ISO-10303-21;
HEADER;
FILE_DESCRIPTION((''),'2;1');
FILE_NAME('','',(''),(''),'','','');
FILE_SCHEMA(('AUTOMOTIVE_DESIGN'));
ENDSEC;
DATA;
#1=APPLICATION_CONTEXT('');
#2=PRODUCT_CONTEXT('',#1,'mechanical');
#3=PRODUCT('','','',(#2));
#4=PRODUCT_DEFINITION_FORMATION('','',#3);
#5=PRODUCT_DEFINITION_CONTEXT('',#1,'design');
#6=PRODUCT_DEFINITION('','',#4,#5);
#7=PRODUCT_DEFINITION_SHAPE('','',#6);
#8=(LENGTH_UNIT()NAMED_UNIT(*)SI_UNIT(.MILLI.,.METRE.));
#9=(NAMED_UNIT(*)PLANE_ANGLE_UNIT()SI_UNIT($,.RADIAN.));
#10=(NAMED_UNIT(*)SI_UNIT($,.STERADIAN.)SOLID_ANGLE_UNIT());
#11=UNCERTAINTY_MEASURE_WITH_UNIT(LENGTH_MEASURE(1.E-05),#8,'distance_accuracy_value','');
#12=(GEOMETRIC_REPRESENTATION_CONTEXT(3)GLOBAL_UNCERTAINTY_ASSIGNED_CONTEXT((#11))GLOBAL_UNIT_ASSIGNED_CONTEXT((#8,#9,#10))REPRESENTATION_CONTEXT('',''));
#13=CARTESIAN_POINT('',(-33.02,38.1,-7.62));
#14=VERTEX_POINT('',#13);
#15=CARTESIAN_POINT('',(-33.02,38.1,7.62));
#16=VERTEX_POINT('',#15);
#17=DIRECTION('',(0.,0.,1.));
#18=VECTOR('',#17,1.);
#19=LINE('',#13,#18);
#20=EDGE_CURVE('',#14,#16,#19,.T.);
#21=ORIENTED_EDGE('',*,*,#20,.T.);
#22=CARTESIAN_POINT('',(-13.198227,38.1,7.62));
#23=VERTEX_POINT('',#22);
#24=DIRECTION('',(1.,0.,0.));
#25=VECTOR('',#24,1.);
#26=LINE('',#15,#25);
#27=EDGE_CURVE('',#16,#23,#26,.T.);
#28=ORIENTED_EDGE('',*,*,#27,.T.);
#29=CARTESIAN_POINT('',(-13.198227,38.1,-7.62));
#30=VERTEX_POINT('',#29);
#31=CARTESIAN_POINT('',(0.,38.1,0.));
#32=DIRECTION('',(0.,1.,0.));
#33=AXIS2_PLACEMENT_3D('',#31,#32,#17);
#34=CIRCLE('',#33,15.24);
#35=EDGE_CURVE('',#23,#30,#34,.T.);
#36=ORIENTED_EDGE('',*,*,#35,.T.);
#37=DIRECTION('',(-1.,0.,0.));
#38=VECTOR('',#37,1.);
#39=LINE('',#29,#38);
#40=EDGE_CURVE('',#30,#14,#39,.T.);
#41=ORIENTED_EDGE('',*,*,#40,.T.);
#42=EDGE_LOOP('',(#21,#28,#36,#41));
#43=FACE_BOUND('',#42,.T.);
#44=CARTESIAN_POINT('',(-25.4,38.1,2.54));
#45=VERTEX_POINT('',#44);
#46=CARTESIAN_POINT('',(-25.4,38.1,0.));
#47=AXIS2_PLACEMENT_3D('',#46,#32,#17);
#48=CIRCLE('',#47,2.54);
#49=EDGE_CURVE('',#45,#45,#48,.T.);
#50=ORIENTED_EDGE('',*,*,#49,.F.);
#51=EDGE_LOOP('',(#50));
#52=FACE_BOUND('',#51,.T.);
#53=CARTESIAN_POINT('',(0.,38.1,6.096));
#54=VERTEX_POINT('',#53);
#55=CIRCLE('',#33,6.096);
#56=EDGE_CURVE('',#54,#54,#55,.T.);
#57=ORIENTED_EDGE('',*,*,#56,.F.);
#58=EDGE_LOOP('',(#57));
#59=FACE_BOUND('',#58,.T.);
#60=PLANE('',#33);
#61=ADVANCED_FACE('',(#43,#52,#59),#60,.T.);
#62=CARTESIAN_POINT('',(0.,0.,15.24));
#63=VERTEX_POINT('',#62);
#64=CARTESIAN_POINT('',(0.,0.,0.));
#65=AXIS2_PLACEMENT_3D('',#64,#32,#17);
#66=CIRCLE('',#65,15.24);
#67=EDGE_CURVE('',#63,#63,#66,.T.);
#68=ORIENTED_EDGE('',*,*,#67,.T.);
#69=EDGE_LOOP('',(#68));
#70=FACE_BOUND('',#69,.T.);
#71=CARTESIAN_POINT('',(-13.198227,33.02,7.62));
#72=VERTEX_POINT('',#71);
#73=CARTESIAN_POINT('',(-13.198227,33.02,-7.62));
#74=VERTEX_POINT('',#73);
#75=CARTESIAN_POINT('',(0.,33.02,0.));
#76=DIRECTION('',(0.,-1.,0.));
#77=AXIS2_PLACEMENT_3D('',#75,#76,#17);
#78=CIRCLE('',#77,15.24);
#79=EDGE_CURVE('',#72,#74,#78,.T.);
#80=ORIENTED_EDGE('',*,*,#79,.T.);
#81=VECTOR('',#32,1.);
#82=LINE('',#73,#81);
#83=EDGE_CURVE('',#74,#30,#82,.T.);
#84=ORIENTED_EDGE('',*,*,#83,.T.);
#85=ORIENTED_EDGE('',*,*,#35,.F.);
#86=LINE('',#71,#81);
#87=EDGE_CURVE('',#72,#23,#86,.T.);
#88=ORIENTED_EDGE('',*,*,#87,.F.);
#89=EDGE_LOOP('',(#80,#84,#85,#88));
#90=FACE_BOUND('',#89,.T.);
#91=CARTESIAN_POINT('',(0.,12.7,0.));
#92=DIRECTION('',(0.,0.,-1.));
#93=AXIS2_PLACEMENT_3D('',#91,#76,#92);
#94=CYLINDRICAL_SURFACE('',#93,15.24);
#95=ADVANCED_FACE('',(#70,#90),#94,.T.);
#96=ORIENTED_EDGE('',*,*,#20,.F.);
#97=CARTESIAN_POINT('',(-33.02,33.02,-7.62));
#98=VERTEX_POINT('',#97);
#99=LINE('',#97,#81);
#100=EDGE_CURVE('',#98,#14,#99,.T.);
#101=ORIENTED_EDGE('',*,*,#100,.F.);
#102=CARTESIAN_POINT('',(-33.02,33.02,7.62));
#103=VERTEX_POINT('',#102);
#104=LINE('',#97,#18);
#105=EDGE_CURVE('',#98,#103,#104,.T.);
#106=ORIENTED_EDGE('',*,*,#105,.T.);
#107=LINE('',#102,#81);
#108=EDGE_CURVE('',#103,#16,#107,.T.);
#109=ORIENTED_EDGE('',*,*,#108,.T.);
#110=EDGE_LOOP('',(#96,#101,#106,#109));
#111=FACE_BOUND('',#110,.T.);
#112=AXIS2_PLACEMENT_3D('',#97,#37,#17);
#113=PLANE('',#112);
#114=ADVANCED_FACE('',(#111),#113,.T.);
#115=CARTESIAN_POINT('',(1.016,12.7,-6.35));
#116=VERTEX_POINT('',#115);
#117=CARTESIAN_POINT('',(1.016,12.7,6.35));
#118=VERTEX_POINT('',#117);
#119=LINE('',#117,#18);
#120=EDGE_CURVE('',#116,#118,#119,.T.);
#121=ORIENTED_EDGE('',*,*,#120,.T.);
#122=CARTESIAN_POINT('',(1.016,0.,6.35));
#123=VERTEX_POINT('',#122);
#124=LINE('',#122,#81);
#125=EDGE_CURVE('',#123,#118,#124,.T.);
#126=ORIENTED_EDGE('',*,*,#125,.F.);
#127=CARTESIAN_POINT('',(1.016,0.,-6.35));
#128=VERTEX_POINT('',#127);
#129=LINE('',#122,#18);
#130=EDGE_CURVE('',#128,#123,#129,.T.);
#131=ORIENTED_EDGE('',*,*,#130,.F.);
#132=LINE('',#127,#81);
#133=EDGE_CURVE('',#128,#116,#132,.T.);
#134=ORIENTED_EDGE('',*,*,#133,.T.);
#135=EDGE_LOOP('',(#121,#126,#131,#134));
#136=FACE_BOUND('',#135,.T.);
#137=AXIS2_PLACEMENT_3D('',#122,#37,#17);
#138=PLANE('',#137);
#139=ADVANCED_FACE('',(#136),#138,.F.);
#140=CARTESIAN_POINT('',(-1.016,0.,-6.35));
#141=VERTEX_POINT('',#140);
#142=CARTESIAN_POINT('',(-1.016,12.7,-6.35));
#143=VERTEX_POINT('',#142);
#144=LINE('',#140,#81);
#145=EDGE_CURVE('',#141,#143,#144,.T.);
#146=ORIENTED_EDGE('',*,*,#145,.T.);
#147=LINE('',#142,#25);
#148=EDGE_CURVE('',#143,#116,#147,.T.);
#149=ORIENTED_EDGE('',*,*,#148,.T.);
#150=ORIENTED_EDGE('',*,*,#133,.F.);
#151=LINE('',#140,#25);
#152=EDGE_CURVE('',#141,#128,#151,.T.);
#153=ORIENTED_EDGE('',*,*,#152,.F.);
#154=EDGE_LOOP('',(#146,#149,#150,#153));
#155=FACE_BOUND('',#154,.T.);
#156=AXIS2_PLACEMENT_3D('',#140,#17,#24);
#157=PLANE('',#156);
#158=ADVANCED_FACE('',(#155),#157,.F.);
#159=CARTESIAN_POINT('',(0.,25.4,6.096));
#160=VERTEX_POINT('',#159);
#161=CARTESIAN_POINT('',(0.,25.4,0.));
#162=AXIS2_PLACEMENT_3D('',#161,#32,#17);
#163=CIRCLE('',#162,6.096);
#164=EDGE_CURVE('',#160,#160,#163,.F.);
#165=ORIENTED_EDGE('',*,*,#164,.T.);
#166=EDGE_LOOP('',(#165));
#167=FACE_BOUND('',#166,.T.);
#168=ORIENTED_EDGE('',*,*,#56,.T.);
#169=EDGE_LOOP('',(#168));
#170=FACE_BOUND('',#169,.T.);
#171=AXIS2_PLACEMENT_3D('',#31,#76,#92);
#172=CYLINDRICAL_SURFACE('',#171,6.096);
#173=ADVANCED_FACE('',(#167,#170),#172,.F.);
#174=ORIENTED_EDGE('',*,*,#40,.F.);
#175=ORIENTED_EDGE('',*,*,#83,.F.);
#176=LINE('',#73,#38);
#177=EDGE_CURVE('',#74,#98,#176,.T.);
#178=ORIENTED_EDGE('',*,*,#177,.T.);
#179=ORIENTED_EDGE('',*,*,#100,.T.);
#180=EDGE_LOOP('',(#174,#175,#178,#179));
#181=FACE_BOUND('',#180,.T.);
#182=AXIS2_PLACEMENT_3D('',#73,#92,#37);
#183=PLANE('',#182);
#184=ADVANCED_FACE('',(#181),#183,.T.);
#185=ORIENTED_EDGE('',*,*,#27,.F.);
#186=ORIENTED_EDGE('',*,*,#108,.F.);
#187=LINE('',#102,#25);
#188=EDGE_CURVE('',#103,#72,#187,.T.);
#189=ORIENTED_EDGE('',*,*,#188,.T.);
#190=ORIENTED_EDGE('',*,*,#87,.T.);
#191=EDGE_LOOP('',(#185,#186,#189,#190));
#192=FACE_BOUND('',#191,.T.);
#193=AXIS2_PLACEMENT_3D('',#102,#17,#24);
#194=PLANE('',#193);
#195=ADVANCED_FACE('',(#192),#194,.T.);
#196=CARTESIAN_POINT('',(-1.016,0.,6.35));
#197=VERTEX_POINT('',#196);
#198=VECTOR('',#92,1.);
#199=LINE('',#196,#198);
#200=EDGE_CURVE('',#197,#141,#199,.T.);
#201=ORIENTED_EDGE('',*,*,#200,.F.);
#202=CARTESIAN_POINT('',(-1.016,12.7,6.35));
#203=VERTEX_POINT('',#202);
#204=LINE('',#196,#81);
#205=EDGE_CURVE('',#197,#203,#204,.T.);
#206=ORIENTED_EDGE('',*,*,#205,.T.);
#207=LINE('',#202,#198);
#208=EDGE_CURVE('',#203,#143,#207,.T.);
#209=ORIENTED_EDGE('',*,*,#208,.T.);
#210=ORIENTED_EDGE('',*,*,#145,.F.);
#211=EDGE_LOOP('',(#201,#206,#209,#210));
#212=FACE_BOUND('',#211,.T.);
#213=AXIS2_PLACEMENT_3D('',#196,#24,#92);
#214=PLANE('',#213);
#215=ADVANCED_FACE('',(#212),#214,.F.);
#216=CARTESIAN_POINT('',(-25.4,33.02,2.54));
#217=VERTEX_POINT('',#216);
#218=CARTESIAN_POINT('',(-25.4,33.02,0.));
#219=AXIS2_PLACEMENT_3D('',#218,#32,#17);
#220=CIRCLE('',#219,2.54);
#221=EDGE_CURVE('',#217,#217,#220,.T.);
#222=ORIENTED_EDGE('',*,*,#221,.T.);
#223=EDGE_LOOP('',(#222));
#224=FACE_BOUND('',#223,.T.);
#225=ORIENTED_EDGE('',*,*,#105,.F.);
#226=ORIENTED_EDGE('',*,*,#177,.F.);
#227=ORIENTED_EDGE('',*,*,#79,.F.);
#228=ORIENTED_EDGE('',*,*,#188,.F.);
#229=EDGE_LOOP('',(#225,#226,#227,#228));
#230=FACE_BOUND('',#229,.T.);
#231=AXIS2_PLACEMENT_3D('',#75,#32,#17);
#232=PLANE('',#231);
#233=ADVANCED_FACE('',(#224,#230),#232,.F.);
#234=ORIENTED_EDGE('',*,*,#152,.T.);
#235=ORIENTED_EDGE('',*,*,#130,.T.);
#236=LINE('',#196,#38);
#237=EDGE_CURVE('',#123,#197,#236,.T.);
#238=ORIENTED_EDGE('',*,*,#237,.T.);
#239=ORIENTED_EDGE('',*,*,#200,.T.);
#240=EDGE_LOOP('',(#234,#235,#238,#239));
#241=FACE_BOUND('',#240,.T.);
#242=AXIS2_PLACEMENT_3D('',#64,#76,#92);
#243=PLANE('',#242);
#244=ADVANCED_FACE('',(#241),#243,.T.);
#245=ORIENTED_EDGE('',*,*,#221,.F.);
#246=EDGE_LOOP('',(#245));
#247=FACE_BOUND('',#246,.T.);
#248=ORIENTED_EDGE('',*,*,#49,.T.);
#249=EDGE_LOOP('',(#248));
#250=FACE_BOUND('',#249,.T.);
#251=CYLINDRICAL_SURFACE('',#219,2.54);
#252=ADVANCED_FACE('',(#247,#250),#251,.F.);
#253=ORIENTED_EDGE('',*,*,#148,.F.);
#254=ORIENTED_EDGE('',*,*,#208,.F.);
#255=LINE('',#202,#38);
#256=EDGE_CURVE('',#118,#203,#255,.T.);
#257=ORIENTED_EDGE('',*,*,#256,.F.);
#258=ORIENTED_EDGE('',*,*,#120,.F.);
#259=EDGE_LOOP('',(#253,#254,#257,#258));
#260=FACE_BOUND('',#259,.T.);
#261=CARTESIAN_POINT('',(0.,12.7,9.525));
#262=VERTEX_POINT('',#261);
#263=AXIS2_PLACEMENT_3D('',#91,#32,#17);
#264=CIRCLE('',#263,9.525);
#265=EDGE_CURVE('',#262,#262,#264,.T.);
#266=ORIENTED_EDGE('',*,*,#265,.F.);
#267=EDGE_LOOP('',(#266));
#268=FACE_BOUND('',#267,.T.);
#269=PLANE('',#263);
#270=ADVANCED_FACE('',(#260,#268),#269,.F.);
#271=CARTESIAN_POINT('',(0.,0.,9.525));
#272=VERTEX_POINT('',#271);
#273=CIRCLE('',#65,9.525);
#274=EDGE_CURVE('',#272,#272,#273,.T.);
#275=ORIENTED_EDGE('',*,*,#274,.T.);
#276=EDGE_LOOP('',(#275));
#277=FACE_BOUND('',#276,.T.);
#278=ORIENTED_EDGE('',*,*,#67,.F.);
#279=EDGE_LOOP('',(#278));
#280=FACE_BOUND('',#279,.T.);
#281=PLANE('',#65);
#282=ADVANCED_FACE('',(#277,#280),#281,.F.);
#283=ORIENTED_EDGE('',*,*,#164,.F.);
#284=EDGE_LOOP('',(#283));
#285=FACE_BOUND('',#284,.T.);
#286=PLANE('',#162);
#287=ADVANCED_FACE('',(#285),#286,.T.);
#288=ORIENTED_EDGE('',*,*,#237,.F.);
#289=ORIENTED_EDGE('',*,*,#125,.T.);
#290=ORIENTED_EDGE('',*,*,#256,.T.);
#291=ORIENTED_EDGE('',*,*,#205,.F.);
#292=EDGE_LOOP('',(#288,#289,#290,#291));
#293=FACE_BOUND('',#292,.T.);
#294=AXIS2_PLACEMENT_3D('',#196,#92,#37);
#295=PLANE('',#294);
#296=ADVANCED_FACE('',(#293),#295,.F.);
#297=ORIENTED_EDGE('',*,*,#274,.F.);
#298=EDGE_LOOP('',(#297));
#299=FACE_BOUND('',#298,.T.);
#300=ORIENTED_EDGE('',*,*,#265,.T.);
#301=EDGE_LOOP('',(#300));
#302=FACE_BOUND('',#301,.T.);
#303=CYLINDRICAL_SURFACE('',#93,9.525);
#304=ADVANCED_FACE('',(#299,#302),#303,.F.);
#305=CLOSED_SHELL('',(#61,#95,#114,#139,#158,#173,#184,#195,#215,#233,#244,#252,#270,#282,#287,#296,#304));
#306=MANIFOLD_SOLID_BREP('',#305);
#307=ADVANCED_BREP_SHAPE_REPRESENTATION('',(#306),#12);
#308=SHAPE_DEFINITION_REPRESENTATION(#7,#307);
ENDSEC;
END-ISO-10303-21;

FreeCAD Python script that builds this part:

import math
import FreeCAD as App
import Part
import Sketcher
Q = App.Units.Quantity


def add_polygon(sketch, points):
    """Adds a closed chain of lines whose ends are joined by coincident constraints."""
    first, n = sketch.GeometryCount, len(points)
    for a, b in zip(points, points[1:] + points[:1]):
        sketch.addGeometry(Part.LineSegment(App.Vector(*a, 0), App.Vector(*b, 0)), False)
    for i in range(n):
        sketch.addConstraint(Sketcher.Constraint("Coincident", first + i, 2, first + (i + 1) % n, 1))

doc = App.newDocument("Part")
params = doc.addObject("Spreadsheet::Sheet", "Params")
for row, (alias, value) in enumerate([
    ("sketch1_diameter", "1.2 in"),
    ("sketch1_diameter2", "0.75 in"),
    ("pad1_length", "0.5 in"),
    ("sketch2_diameter", "1.2 in"),
    ("pad2_length", "0.5 in"),
    ("sketch3_diameter", "1.2 in"),
    ("sketch3_diameter2", "0.48 in"),
    ("pad3_length", "0.5 in"),
    ("sketch4_height", "0.5 in"),
    ("sketch4_width", "0.08 in"),
    ("pad4_length", "0.5 in"),
    ("sketch5_radius", "0.6 in"),
    ("sketch5_height", "0.6 in"),
    ("pad5_length", "0.2 in"),
    ("sketch6_diameter", "0.2 in"),
    ("pocket1_length", "0.2 in"),
], start=1):
    params.set(f"A{row}", alias)
    params.set(f"B{row}", "=" + value)
    params.setAlias(f"B{row}", alias)

body = doc.addObject("PartDesign::Body", "Body")

sketch1 = body.newObject("Sketcher::SketchObject", "Sketch")
sketch1.AttachmentSupport = (doc.getObject("XZ_Plane"), [""])
sketch1.MapMode = "FlatFace"
sketch1.addGeometry(Part.Circle(App.Vector(0, 0, 0), App.Vector(0, 0, 1), 15), False)
sketch1.addGeometry(Part.Circle(App.Vector(0, 0, 0), App.Vector(0, 0, 1), 10), False)
sketch1.addConstraint(Sketcher.Constraint("Coincident", 0, 3, -1, 1))
sketch1.addConstraint(Sketcher.Constraint("Coincident", 1, 3, -1, 1))
sketch1.addConstraint(Sketcher.Constraint("Diameter", 0, Q("1.2 in")))
sketch1.addConstraint(Sketcher.Constraint("Diameter", 1, Q("0.75 in")))
sketch1.setExpression("Constraints[2]", "Params.sketch1_diameter")
sketch1.setExpression("Constraints[3]", "Params.sketch1_diameter2")
pad1 = body.newObject("PartDesign::Pad", "Pad")
pad1.Profile = sketch1
pad1.setExpression("Length", "Params.pad1_length")
pad1.Reversed = True

sketch2 = body.newObject("Sketcher::SketchObject", "Sketch001")
sketch2.AttachmentSupport = (doc.getObject("XZ_Plane"), [""])
sketch2.MapMode = "FlatFace"
sketch2.AttachmentOffset = App.Placement(App.Vector(0, 0, -0.5 * 25.4), App.Rotation())
sketch2.addGeometry(Part.Circle(App.Vector(0, 0, 0), App.Vector(0, 0, 1), 15), False)
sketch2.addConstraint(Sketcher.Constraint("Coincident", 0, 3, -1, 1))
sketch2.addConstraint(Sketcher.Constraint("Diameter", 0, Q("1.2 in")))
sketch2.setExpression("Constraints[1]", "Params.sketch2_diameter")
pad2 = body.newObject("PartDesign::Pad", "Pad001")
pad2.Profile = sketch2
pad2.setExpression("Length", "Params.pad2_length")
pad2.Reversed = True

sketch3 = body.newObject("Sketcher::SketchObject", "Sketch002")
sketch3.AttachmentSupport = (doc.getObject("XZ_Plane"), [""])
sketch3.MapMode = "FlatFace"
sketch3.AttachmentOffset = App.Placement(App.Vector(0, 0, -1 * 25.4), App.Rotation())
sketch3.addGeometry(Part.Circle(App.Vector(0, 0, 0), App.Vector(0, 0, 1), 15), False)
sketch3.addGeometry(Part.Circle(App.Vector(0, 0, 0), App.Vector(0, 0, 1), 6), False)
sketch3.addConstraint(Sketcher.Constraint("Coincident", 0, 3, -1, 1))
sketch3.addConstraint(Sketcher.Constraint("Coincident", 1, 3, -1, 1))
sketch3.addConstraint(Sketcher.Constraint("Diameter", 0, Q("1.2 in")))
sketch3.addConstraint(Sketcher.Constraint("Diameter", 1, Q("0.48 in")))
sketch3.setExpression("Constraints[2]", "Params.sketch3_diameter")
sketch3.setExpression("Constraints[3]", "Params.sketch3_diameter2")
pad3 = body.newObject("PartDesign::Pad", "Pad002")
pad3.Profile = sketch3
pad3.setExpression("Length", "Params.pad3_length")
pad3.Reversed = True

sketch4 = body.newObject("Sketcher::SketchObject", "Sketch003")
sketch4.AttachmentSupport = (doc.getObject("XZ_Plane"), [""])
sketch4.MapMode = "FlatFace"
sketch4.AttachmentOffset = App.Placement(App.Vector(0, 0, -0.5 * 25.4), App.Rotation())
add_polygon(sketch4, [(-1, 6.3), (-1, -6.3), (1, -6.3), (1, 6.3)])
sketch4.addConstraint(Sketcher.Constraint("Vertical", 0))
sketch4.addConstraint(Sketcher.Constraint("Horizontal", 1))
sketch4.addConstraint(Sketcher.Constraint("Vertical", 2))
sketch4.addConstraint(Sketcher.Constraint("Horizontal", 3))
sketch4.addConstraint(Sketcher.Constraint("Symmetric", 0, 2, 2, 2, -1, 1))
sketch4.addConstraint(Sketcher.Constraint("DistanceY", 0, 2, 0, 1, Q("0.5 in")))
sketch4.addConstraint(Sketcher.Constraint("DistanceX", 1, 1, 1, 2, Q("0.08 in")))
sketch4.setExpression("Constraints[9]", "Params.sketch4_height")
sketch4.setExpression("Constraints[10]", "Params.sketch4_width")
pad4 = body.newObject("PartDesign::Pad", "Pad003")
pad4.Profile = sketch4
pad4.setExpression("Length", "Params.pad4_length")

sketch5 = body.newObject("Sketcher::SketchObject", "Sketch004")
sketch5.AttachmentSupport = (doc.getObject("XZ_Plane"), [""])
sketch5.MapMode = "FlatFace"
sketch5.AttachmentOffset = App.Placement(App.Vector(0, 0, -1.3 * 25.4), App.Rotation())
sketch5.addGeometry(Part.LineSegment(App.Vector(-13, -8, 0), App.Vector(-33, -8, 0)), False)
sketch5.addGeometry(Part.LineSegment(App.Vector(-33, -8, 0), App.Vector(-33, 8, 0)), False)
sketch5.addGeometry(Part.LineSegment(App.Vector(-33, 8, 0), App.Vector(-13, 8, 0)), False)
sketch5.addGeometry(Part.ArcOfCircle(Part.Circle(App.Vector(0, 0, 0), App.Vector(0, 0, 1), 15), math.radians(150), math.radians(210)), False)
sketch5.addConstraint(Sketcher.Constraint("Coincident", 0, 2, 1, 1))
sketch5.addConstraint(Sketcher.Constraint("Coincident", 1, 2, 2, 1))
sketch5.addConstraint(Sketcher.Constraint("Coincident", 2, 2, 3, 1))
sketch5.addConstraint(Sketcher.Constraint("Coincident", 3, 2, 0, 1))
sketch5.addConstraint(Sketcher.Constraint("Horizontal", 0))
sketch5.addConstraint(Sketcher.Constraint("Vertical", 1))
sketch5.addConstraint(Sketcher.Constraint("Horizontal", 2))
sketch5.addConstraint(Sketcher.Constraint("Coincident", 3, 3, -1, 1))
sketch5.addConstraint(Sketcher.Constraint("Vertical", 2, 2, 3, 2))
sketch5.addConstraint(Sketcher.Constraint("Radius", 3, Q("0.6 in")))
sketch5.addConstraint(Sketcher.Constraint("DistanceY", 1, 1, 1, 2, Q("0.6 in")))
sketch5.addConstraint(Sketcher.Constraint("DistanceX", 0, 2, -1, 1, Q("1.3 in")))
sketch5.setExpression("Constraints[9]", "Params.sketch5_radius")
sketch5.setExpression("Constraints[10]", "Params.sketch5_height")
pad5 = body.newObject("PartDesign::Pad", "Pad004")
pad5.Profile = sketch5
pad5.setExpression("Length", "Params.pad5_length")
pad5.Reversed = True

sketch6 = body.newObject("Sketcher::SketchObject", "Sketch005")
sketch6.AttachmentSupport = (doc.getObject("XZ_Plane"), [""])
sketch6.MapMode = "FlatFace"
sketch6.AttachmentOffset = App.Placement(App.Vector(0, 0, -1.5 * 25.4), App.Rotation())
sketch6.addGeometry(Part.Circle(App.Vector(-25.4, 0, 0), App.Vector(0, 0, 1), 2.5), False)
sketch6.addConstraint(Sketcher.Constraint("PointOnObject", 0, 3, -1))
sketch6.addConstraint(Sketcher.Constraint("Diameter", 0, Q("0.2 in")))
sketch6.addConstraint(Sketcher.Constraint("DistanceX", 0, 3, -1, 1, Q("1 in")))
sketch6.setExpression("Constraints[1]", "Params.sketch6_diameter")
pocket1 = body.newObject("PartDesign::Pocket", "Pocket")
pocket1.Profile = sketch6
pocket1.setExpression("Length", "Params.pocket1_length")
pocket1.Reversed = True

doc.recompute()
